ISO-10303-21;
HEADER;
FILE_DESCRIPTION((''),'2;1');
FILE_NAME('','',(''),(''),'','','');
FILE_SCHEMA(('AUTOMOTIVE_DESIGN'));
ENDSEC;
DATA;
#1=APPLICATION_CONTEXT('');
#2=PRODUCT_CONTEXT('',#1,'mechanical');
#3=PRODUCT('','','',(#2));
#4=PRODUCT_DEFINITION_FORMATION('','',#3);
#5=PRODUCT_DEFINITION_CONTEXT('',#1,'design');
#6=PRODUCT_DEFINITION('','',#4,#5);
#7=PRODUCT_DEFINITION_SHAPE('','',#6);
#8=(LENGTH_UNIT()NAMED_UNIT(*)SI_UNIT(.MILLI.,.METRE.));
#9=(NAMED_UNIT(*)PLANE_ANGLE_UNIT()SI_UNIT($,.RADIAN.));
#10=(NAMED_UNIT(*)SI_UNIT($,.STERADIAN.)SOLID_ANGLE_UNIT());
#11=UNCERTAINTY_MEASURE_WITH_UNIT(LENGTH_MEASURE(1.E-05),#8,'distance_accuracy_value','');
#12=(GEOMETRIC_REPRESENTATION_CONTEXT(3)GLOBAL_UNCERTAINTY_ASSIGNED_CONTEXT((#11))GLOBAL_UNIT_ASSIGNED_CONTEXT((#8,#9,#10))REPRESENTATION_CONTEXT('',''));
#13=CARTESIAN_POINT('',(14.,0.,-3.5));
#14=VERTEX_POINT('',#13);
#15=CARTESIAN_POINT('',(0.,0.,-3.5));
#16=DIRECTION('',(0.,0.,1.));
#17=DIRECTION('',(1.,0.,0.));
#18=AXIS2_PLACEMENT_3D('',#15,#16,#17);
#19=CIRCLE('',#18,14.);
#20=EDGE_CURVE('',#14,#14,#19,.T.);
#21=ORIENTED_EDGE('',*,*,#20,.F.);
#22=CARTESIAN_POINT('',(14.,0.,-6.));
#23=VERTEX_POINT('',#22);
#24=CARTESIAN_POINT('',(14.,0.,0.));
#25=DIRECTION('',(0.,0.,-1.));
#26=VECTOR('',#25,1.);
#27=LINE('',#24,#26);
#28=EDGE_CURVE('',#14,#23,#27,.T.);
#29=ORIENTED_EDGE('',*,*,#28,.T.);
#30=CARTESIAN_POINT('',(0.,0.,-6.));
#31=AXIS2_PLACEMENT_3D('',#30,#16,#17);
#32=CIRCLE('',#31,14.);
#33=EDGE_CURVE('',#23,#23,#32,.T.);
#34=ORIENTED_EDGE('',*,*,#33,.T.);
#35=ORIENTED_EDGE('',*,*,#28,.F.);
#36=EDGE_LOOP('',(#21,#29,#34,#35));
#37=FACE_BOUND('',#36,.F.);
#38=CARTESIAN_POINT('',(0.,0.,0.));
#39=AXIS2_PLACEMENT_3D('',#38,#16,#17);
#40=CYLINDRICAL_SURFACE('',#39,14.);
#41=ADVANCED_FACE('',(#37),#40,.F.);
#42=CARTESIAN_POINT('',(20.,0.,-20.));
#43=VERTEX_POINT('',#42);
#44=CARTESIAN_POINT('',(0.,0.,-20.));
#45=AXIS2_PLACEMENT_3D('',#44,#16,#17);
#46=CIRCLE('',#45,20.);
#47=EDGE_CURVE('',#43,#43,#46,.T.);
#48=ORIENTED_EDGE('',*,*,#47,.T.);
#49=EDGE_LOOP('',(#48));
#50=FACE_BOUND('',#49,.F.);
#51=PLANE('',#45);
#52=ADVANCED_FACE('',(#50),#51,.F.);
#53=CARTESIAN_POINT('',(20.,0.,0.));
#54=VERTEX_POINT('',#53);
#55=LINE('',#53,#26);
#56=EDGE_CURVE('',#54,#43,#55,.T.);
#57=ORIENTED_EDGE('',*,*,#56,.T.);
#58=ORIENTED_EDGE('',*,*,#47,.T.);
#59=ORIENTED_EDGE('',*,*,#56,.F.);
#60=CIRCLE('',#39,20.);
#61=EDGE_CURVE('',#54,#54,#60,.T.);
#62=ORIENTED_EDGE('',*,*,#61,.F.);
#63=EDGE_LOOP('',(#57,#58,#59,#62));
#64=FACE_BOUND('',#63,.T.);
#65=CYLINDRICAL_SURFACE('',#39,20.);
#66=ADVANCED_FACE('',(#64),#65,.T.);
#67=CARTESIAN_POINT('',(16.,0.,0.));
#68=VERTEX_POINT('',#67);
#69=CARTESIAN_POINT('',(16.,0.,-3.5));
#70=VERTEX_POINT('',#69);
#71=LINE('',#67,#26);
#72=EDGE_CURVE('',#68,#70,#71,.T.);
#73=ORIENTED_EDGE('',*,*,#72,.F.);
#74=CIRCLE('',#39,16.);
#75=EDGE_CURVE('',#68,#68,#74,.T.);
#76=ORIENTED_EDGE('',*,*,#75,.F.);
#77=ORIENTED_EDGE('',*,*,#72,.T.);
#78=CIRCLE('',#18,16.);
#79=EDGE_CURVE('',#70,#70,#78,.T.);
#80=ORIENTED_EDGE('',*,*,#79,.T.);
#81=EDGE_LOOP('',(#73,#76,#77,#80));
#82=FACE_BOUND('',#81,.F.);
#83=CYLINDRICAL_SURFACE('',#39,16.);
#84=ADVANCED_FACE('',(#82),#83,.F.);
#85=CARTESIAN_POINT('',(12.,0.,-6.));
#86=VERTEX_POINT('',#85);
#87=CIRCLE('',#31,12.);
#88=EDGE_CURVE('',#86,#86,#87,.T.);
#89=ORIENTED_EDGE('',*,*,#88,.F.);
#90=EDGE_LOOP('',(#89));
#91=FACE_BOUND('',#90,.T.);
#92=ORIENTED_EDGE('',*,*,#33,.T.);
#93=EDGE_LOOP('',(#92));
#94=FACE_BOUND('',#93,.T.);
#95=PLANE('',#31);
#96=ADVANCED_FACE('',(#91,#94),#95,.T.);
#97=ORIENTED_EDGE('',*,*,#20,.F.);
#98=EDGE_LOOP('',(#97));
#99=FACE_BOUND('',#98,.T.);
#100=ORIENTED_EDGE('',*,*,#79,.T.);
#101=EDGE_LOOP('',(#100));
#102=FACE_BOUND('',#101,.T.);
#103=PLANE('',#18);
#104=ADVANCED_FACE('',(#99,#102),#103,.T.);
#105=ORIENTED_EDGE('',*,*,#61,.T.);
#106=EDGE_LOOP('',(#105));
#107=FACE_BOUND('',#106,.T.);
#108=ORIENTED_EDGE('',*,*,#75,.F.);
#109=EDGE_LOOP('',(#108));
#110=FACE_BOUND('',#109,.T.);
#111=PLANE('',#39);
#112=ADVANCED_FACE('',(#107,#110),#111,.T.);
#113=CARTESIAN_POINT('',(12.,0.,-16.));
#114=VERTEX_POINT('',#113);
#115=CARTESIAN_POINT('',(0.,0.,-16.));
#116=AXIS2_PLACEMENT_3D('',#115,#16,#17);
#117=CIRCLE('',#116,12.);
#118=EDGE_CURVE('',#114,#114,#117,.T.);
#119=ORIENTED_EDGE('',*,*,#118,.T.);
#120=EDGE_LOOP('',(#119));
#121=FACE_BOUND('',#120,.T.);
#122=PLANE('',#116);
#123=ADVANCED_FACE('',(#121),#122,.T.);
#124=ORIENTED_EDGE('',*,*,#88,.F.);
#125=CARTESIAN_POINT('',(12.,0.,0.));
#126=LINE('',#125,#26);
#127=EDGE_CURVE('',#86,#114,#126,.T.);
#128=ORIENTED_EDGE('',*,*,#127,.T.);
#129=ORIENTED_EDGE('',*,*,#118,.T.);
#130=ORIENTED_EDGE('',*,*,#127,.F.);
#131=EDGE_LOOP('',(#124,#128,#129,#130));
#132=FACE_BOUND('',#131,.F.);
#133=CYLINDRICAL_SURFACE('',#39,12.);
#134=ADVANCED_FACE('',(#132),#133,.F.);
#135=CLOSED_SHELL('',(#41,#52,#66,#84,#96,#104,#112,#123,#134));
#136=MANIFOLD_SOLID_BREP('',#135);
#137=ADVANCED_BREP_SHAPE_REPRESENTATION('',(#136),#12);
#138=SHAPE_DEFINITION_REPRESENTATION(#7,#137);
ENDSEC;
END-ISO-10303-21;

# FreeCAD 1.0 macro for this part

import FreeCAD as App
import Part
import Sketcher

doc = App.newDocument("Part")
body = doc.addObject("PartDesign::Body", "Body")

# Sketch on XY plane
sketch1 = doc.addObject("Sketcher::SketchObject", "Sketch")
body.addObject(sketch1)
sketch1.AttachmentSupport = (doc.XY_Plane, [""])
sketch1.MapMode = "FlatFace"
sketch1.addGeometry(Part.Circle(App.Vector(0, 0, 0), App.Vector(0, 0, 1), 20), False)
sketch1.addConstraint(Sketcher.Constraint("Coincident", 0, 3, -1, 1))
sketch1.addConstraint(Sketcher.Constraint("Diameter", 0, 40.0))
pad1 = doc.addObject("PartDesign::Pad", "Pad")
body.addObject(pad1)
pad1.Profile = sketch1
pad1.Length = 20
pad1.Reversed = True

# Sketch on XY plane
sketch2 = doc.addObject("Sketcher::SketchObject", "Sketch001")
body.addObject(sketch2)
sketch2.AttachmentSupport = (doc.XY_Plane, [""])
sketch2.MapMode = "FlatFace"
sketch2.addGeometry(Part.Circle(App.Vector(0, 0, 0), App.Vector(0, 0, 1), 12), False)
sketch2.addConstraint(Sketcher.Constraint("Coincident", 0, 3, -1, 1))
sketch2.addConstraint(Sketcher.Constraint("Diameter", 0, 24.0))
pocket1 = doc.addObject("PartDesign::Pocket", "Pocket")
body.addObject(pocket1)
pocket1.Profile = sketch2
pocket1.Length = 16

# Sketch on XY plane
sketch3 = doc.addObject("Sketcher::SketchObject", "Sketch002")
body.addObject(sketch3)
sketch3.AttachmentSupport = (doc.XY_Plane, [""])
sketch3.MapMode = "FlatFace"
sketch3.addGeometry(Part.Circle(App.Vector(0, 0, 0), App.Vector(0, 0, 1), 14), False)
sketch3.addGeometry(Part.Circle(App.Vector(0, 0, 0), App.Vector(0, 0, 1), 12), False)
sketch3.addConstraint(Sketcher.Constraint("Coincident", 0, 3, -1, 1))
sketch3.addConstraint(Sketcher.Constraint("Coincident", 1, 3, -1, 1))
sketch3.addConstraint(Sketcher.Constraint("Diameter", 0, 28.0))
sketch3.addConstraint(Sketcher.Constraint("Diameter", 1, 24.0))
pocket2 = doc.addObject("PartDesign::Pocket", "Pocket001")
body.addObject(pocket2)
pocket2.Profile = sketch3
pocket2.Length = 6

# Sketch on XY plane
sketch4 = doc.addObject("Sketcher::SketchObject", "Sketch003")
body.addObject(sketch4)
sketch4.AttachmentSupport = (doc.XY_Plane, [""])
sketch4.MapMode = "FlatFace"
sketch4.addGeometry(Part.Circle(App.Vector(0, 0, 0), App.Vector(0, 0, 1), 16), False)
sketch4.addGeometry(Part.Circle(App.Vector(0, 0, 0), App.Vector(0, 0, 1), 14), False)
sketch4.addConstraint(Sketcher.Constraint("Coincident", 0, 3, -1, 1))
sketch4.addConstraint(Sketcher.Constraint("Coincident", 1, 3, -1, 1))
sketch4.addConstraint(Sketcher.Constraint("Diameter", 0, 32.0))
sketch4.addConstraint(Sketcher.Constraint("Diameter", 1, 28.0))
pocket3 = doc.addObject("PartDesign::Pocket", "Pocket002")
body.addObject(pocket3)
pocket3.Profile = sketch4
pocket3.Length = 3.5

doc.recompute()
